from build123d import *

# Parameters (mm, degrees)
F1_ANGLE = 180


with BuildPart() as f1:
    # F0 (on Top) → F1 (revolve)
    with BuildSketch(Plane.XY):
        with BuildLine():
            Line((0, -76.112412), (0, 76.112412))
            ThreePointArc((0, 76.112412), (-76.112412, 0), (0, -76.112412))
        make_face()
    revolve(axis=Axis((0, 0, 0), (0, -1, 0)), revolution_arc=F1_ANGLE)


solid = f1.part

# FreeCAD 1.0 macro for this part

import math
import FreeCAD as App
import Part
import Sketcher

doc = App.newDocument("Part")
body = doc.addObject("PartDesign::Body", "Body")

sketch1 = body.newObject("Sketcher::SketchObject", "Sketch")
sketch1.AttachmentSupport = (doc.getObject("XY_Plane"), [""])
sketch1.MapMode = "FlatFace"
sketch1.addGeometry(Part.LineSegment(App.Vector(0, -76, 0), App.Vector(0, 76, 0)), False)
sketch1.addGeometry(Part.ArcOfCircle(Part.Circle(App.Vector(0, 0, 0), App.Vector(0, 0, 1), 76), math.radians(90), math.radians(270)), False)
sketch1.addConstraint(Sketcher.Constraint("Coincident", 0, 1, 1, 2))
sketch1.addConstraint(Sketcher.Constraint("Coincident", 1, 1, 0, 2))
sketch1.addConstraint(Sketcher.Constraint("Vertical", 0))
sketch1.addConstraint(Sketcher.Constraint("Coincident", 1, 3, -1, 1))
sketch1.addConstraint(Sketcher.Constraint("PointOnObject", 0, 1, -2))
sketch1.addConstraint(Sketcher.Constraint("Radius", 1, 76.112412))
revolution = body.newObject("PartDesign::Revolution", "Revolution")
revolution.Profile = sketch1
revolution.ReferenceAxis = (sketch1, ["V_Axis"])
revolution.Angle = 180
revolution.Reversed = True

doc.recompute()
